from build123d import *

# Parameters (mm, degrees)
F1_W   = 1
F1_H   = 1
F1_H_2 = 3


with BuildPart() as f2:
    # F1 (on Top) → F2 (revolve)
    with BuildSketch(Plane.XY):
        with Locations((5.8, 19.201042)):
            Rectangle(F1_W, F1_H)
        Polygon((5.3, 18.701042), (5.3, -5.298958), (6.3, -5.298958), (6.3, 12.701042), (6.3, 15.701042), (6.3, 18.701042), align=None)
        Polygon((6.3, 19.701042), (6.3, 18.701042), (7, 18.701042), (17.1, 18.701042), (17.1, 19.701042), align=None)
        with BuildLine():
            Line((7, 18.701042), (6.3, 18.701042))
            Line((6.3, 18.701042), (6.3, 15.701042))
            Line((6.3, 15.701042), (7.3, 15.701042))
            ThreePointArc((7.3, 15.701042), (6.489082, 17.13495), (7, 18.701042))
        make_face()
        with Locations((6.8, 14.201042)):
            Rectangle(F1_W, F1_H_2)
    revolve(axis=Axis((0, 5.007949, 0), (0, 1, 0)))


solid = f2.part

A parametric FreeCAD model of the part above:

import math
import FreeCAD as App
import Part
import Sketcher
from FreeCAD import Vector

doc = App.newDocument("Part")
params = doc.addObject("Spreadsheet::Sheet", "Params")
for row, (alias, value) in enumerate([
    ("sketch1_width", "1 mm"),
    ("sketch1_height", "25 mm"),
    ("sketch1_height2", "18 mm"),
    ("sketch1_height3", "3 mm"),
    ("sketch1_width2", "10.1 mm"),
    ("revolution_angle", "360 deg"),
], start=1):
    params.set(f"A{row}", alias)
    params.set(f"B{row}", "=" + value)
    params.setAlias(f"B{row}", alias)

body = doc.addObject("PartDesign::Body", "Body")

sketch1 = doc.addObject("Sketcher::SketchObject", "Sketch")
body.addObject(sketch1)
sketch1.AttachmentSupport = (doc.XY_Plane, [""])
sketch1.MapMode = "FlatFace"
sketch1.addGeometry([
    Part.LineSegment(Vector(5.3, 19.7, 0), Vector(5.3, -5.3, 0)),
    Part.LineSegment(Vector(5.3, -5.3, 0), Vector(6.3, -5.3, 0)),
    Part.LineSegment(Vector(6.3, -5.3, 0), Vector(6.3, 12.7, 0)),
    Part.LineSegment(Vector(6.3, 12.7, 0), Vector(7.3, 12.7, 0)),
    Part.LineSegment(Vector(7.3, 12.7, 0), Vector(7.3, 15.7, 0)),
    Part.ArcOfCircle(Part.Circle(Vector(8.5, 17.3, 0), Vector(0, 0, 1), 2), math.radians(138), math.radians(233)),
    Part.LineSegment(Vector(7, 18.7, 0), Vector(17.1, 18.7, 0)),
    Part.LineSegment(Vector(17.1, 18.7, 0), Vector(17.1, 19.7, 0)),
    Part.LineSegment(Vector(17.1, 19.7, 0), Vector(5.3, 19.7, 0)),
], False)
sketch1.addConstraint([
    Sketcher.Constraint("Coincident", 0, 2, 1, 1),
    Sketcher.Constraint("Coincident", 1, 2, 2, 1),
    Sketcher.Constraint("Coincident", 2, 2, 3, 1),
    Sketcher.Constraint("Coincident", 3, 2, 4, 1),
    Sketcher.Constraint("Coincident", 4, 2, 5, 2),
    Sketcher.Constraint("Coincident", 5, 1, 6, 1),
    Sketcher.Constraint("Coincident", 6, 2, 7, 1),
    Sketcher.Constraint("Coincident", 7, 2, 8, 1),
    Sketcher.Constraint("Coincident", 8, 2, 0, 1),
    Sketcher.Constraint("Vertical", 0),
    Sketcher.Constraint("Horizontal", 1),
    Sketcher.Constraint("Vertical", 2),
    Sketcher.Constraint("Horizontal", 3),
    Sketcher.Constraint("Vertical", 4),
    Sketcher.Constraint("Horizontal", 6),
    Sketcher.Constraint("Vertical", 7),
    Sketcher.Constraint("Horizontal", 8),
    Sketcher.Constraint("Equal", 1, 3),
    Sketcher.Constraint("Equal", 3, 7),
    Sketcher.Constraint("DistanceX", 1, 1, 1, 2, 1.0),
    Sketcher.Constraint("DistanceY", 0, 2, 0, 1, 25.0),
    Sketcher.Constraint("DistanceY", 2, 1, 2, 2, 18.0),
    Sketcher.Constraint("DistanceY", 4, 1, 4, 2, 3.0),
    Sketcher.Constraint("DistanceX", 6, 1, 6, 2, 10.1),
    Sketcher.Constraint("DistanceX", 8, 2, 8, 1, 11.8),
    Sketcher.Constraint("DistanceX", -1, 1, 5, 1, 7.0),
    Sketcher.Constraint("Radius", 5, 2.042775),
    Sketcher.Constraint("DistanceY", -1, 1, 2, 2, 12.701042),
])
sketch1.setExpression("Constraints[19]", "Params.sketch1_width")
sketch1.setExpression("Constraints[20]", "Params.sketch1_height")
sketch1.setExpression("Constraints[21]", "Params.sketch1_height2")
sketch1.setExpression("Constraints[22]", "Params.sketch1_height3")
sketch1.setExpression("Constraints[23]", "Params.sketch1_width2")
revolution = doc.addObject("PartDesign::Revolution", "Revolution")
body.addObject(revolution)
revolution.Profile = sketch1
revolution.ReferenceAxis = (sketch1, ["V_Axis"])
revolution.setExpression("Angle", "Params.revolution_angle")

doc.recompute()
